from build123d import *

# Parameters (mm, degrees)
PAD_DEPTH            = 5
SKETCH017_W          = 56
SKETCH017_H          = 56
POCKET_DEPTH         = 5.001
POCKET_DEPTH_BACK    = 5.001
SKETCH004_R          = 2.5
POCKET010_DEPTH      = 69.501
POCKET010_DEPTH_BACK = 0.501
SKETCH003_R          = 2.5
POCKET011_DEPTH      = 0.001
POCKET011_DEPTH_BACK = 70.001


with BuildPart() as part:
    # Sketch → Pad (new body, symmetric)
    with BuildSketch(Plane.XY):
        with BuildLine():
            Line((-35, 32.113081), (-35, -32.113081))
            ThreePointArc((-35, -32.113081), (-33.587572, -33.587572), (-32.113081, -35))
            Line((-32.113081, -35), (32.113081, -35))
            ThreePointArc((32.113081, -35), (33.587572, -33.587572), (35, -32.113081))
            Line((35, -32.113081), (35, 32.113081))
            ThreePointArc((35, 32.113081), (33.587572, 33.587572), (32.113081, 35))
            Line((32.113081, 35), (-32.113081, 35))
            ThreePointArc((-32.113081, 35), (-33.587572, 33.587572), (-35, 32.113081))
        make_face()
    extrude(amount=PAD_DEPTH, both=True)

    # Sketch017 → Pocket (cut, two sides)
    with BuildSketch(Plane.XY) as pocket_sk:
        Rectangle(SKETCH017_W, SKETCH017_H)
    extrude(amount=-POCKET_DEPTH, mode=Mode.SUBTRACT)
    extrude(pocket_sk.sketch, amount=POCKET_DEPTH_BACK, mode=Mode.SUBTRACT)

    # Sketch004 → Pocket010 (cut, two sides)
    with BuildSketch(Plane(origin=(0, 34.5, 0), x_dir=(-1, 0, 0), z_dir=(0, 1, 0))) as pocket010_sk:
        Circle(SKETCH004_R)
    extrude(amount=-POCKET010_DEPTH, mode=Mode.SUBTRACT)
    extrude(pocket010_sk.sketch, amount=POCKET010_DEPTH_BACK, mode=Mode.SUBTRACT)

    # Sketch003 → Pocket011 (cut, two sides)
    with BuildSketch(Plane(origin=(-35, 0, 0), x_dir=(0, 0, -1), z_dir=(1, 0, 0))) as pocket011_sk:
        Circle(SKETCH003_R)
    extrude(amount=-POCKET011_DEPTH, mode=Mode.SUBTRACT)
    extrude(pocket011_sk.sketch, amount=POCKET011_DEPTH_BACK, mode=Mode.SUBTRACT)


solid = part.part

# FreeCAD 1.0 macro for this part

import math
import FreeCAD as App
import Part
import Sketcher
from FreeCAD import Vector

doc = App.newDocument("Part")
body = doc.addObject("PartDesign::Body", "Body")

# Sketch on XY plane
sketch1 = body.newObject("Sketcher::SketchObject", "Sketch")
sketch1.AttachmentSupport = (doc.getObject("XY_Plane"), [""])
sketch1.MapMode = "FlatFace"
sketch1.addGeometry(Part.LineSegment(Vector(-35, 32.1, 0), Vector(-35, -32.1, 0)), False)
sketch1.addGeometry(Part.ArcOfCircle(Part.Circle(Vector(0, 0, 0), Vector(0, 0, 1), 47.5), math.radians(-137.46), math.radians(-132.54)), False)
sketch1.addGeometry(Part.LineSegment(Vector(-32.1, -35, 0), Vector(32.1, -35, 0)), False)
sketch1.addGeometry(Part.ArcOfCircle(Part.Circle(Vector(0, 0, 0), Vector(0, 0, 1), 47.5), math.radians(-47.46), math.radians(-42.54)), False)
sketch1.addGeometry(Part.LineSegment(Vector(35, -32.1, 0), Vector(35, 32.1, 0)), False)
sketch1.addGeometry(Part.ArcOfCircle(Part.Circle(Vector(0, 0, 0), Vector(0, 0, 1), 47.5), math.radians(42.54), math.radians(47.46)), False)
sketch1.addGeometry(Part.LineSegment(Vector(32.1, 35, 0), Vector(-32.1, 35, 0)), False)
sketch1.addGeometry(Part.ArcOfCircle(Part.Circle(Vector(0, 0, 0), Vector(0, 0, 1), 47.5), math.radians(132.54), math.radians(137.46)), False)
sketch1.addConstraint(Sketcher.Constraint("Coincident", 0, 2, 1, 1))
sketch1.addConstraint(Sketcher.Constraint("Coincident", 1, 2, 2, 1))
sketch1.addConstraint(Sketcher.Constraint("Coincident", 2, 2, 3, 1))
sketch1.addConstraint(Sketcher.Constraint("Coincident", 3, 2, 4, 1))
sketch1.addConstraint(Sketcher.Constraint("Coincident", 4, 2, 5, 1))
sketch1.addConstraint(Sketcher.Constraint("Coincident", 5, 2, 6, 1))
sketch1.addConstraint(Sketcher.Constraint("Coincident", 6, 2, 7, 1))
sketch1.addConstraint(Sketcher.Constraint("Coincident", 7, 2, 0, 1))
sketch1.addConstraint(Sketcher.Constraint("Vertical", 0))
sketch1.addConstraint(Sketcher.Constraint("Horizontal", 2))
sketch1.addConstraint(Sketcher.Constraint("Vertical", 4))
sketch1.addConstraint(Sketcher.Constraint("Horizontal", 6))
sketch1.addConstraint(Sketcher.Constraint("Equal", 1, 3))
sketch1.addConstraint(Sketcher.Constraint("Equal", 3, 5))
sketch1.addConstraint(Sketcher.Constraint("Equal", 5, 7))
sketch1.addConstraint(Sketcher.Constraint("Symmetric", 1, 3, 5, 3, -1, 1))
sketch1.addConstraint(Sketcher.Constraint("Symmetric", 3, 3, 7, 3, -1, 1))
sketch1.addConstraint(Sketcher.Constraint("Symmetric", 1, 3, 3, 3, -2))
sketch1.addConstraint(Sketcher.Constraint("Horizontal", 0, 2, 3, 2))
sketch1.addConstraint(Sketcher.Constraint("Vertical", 2, 2, 5, 2))
sketch1.addConstraint(Sketcher.Constraint("Equal", 6, 0))
sketch1.addConstraint(Sketcher.Constraint("DistanceX", 0, 2, -1, 1, 35.0))
sketch1.addConstraint(Sketcher.Constraint("DistanceY", 2, 2, -1, 1, 35.0))
sketch1.addConstraint(Sketcher.Constraint("Radius", 1, 47.499836))
sketch1.addConstraint(Sketcher.Constraint("DistanceX", 2, 1, 2, 2, 64.226162))
pad1 = body.newObject("PartDesign::Pad", "Pad")
pad1.Profile = sketch1
pad1.Length = 10
pad1.Midplane = True

# Sketch on XY plane
sketch2 = body.newObject("Sketcher::SketchObject", "Sketch001")
sketch2.AttachmentSupport = (doc.getObject("XY_Plane"), [""])
sketch2.MapMode = "FlatFace"
sketch2.addGeometry(Part.LineSegment(Vector(-28, 28, 0), Vector(-28, -28, 0)), False)
sketch2.addGeometry(Part.LineSegment(Vector(-28, -28, 0), Vector(28, -28, 0)), False)
sketch2.addGeometry(Part.LineSegment(Vector(28, -28, 0), Vector(28, 28, 0)), False)
sketch2.addGeometry(Part.LineSegment(Vector(28, 28, 0), Vector(-28, 28, 0)), False)
sketch2.addConstraint(Sketcher.Constraint("Coincident", 0, 2, 1, 1))
sketch2.addConstraint(Sketcher.Constraint("Coincident", 1, 2, 2, 1))
sketch2.addConstraint(Sketcher.Constraint("Coincident", 2, 2, 3, 1))
sketch2.addConstraint(Sketcher.Constraint("Coincident", 3, 2, 0, 1))
sketch2.addConstraint(Sketcher.Constraint("Vertical", 0))
sketch2.addConstraint(Sketcher.Constraint("Horizontal", 1))
sketch2.addConstraint(Sketcher.Constraint("Vertical", 2))
sketch2.addConstraint(Sketcher.Constraint("Horizontal", 3))
sketch2.addConstraint(Sketcher.Constraint("Symmetric", 0, 2, 2, 2, -1, 1))
sketch2.addConstraint(Sketcher.Constraint("Equal", 3, 0))
sketch2.addConstraint(Sketcher.Constraint("DistanceX", 1, 1, 1, 2, 56.0))
pocket1 = body.newObject("PartDesign::Pocket", "Pocket")
pocket1.Profile = sketch2
pocket1.Type = "ThroughAll"
pocket1.Midplane = True

# Sketch on XZ plane
sketch3 = body.newObject("Sketcher::SketchObject", "Sketch002")
sketch3.AttachmentSupport = (doc.getObject("XZ_Plane"), [""])
sketch3.MapMode = "FlatFace"
sketch3.AttachmentOffset = App.Placement(Vector(0, 0, -34.5), App.Rotation())
sketch3.addGeometry(Part.Circle(Vector(0, 0, 0), Vector(0, 0, 1), 2.5), False)
sketch3.addConstraint(Sketcher.Constraint("Coincident", 0, 3, -1, 1))
sketch3.addConstraint(Sketcher.Constraint("Diameter", 0, 5.0))
pocket2 = body.newObject("PartDesign::Pocket", "Pocket001")
pocket2.Profile = sketch3
pocket2.Type = "ThroughAll"
pocket2.Midplane = True

# Sketch on YZ plane
sketch4 = body.newObject("Sketcher::SketchObject", "Sketch003")
sketch4.AttachmentSupport = (doc.getObject("YZ_Plane"), [""])
sketch4.MapMode = "FlatFace"
sketch4.AttachmentOffset = App.Placement(Vector(0, 0, -35), App.Rotation())
sketch4.addGeometry(Part.Circle(Vector(0, 0, 0), Vector(0, 0, 1), 2.5), False)
sketch4.addConstraint(Sketcher.Constraint("Coincident", 0, 3, -1, 1))
sketch4.addConstraint(Sketcher.Constraint("Diameter", 0, 5.0))
pocket3 = body.newObject("PartDesign::Pocket", "Pocket002")
pocket3.Profile = sketch4
pocket3.Type = "ThroughAll"
pocket3.Midplane = True

doc.recompute()
